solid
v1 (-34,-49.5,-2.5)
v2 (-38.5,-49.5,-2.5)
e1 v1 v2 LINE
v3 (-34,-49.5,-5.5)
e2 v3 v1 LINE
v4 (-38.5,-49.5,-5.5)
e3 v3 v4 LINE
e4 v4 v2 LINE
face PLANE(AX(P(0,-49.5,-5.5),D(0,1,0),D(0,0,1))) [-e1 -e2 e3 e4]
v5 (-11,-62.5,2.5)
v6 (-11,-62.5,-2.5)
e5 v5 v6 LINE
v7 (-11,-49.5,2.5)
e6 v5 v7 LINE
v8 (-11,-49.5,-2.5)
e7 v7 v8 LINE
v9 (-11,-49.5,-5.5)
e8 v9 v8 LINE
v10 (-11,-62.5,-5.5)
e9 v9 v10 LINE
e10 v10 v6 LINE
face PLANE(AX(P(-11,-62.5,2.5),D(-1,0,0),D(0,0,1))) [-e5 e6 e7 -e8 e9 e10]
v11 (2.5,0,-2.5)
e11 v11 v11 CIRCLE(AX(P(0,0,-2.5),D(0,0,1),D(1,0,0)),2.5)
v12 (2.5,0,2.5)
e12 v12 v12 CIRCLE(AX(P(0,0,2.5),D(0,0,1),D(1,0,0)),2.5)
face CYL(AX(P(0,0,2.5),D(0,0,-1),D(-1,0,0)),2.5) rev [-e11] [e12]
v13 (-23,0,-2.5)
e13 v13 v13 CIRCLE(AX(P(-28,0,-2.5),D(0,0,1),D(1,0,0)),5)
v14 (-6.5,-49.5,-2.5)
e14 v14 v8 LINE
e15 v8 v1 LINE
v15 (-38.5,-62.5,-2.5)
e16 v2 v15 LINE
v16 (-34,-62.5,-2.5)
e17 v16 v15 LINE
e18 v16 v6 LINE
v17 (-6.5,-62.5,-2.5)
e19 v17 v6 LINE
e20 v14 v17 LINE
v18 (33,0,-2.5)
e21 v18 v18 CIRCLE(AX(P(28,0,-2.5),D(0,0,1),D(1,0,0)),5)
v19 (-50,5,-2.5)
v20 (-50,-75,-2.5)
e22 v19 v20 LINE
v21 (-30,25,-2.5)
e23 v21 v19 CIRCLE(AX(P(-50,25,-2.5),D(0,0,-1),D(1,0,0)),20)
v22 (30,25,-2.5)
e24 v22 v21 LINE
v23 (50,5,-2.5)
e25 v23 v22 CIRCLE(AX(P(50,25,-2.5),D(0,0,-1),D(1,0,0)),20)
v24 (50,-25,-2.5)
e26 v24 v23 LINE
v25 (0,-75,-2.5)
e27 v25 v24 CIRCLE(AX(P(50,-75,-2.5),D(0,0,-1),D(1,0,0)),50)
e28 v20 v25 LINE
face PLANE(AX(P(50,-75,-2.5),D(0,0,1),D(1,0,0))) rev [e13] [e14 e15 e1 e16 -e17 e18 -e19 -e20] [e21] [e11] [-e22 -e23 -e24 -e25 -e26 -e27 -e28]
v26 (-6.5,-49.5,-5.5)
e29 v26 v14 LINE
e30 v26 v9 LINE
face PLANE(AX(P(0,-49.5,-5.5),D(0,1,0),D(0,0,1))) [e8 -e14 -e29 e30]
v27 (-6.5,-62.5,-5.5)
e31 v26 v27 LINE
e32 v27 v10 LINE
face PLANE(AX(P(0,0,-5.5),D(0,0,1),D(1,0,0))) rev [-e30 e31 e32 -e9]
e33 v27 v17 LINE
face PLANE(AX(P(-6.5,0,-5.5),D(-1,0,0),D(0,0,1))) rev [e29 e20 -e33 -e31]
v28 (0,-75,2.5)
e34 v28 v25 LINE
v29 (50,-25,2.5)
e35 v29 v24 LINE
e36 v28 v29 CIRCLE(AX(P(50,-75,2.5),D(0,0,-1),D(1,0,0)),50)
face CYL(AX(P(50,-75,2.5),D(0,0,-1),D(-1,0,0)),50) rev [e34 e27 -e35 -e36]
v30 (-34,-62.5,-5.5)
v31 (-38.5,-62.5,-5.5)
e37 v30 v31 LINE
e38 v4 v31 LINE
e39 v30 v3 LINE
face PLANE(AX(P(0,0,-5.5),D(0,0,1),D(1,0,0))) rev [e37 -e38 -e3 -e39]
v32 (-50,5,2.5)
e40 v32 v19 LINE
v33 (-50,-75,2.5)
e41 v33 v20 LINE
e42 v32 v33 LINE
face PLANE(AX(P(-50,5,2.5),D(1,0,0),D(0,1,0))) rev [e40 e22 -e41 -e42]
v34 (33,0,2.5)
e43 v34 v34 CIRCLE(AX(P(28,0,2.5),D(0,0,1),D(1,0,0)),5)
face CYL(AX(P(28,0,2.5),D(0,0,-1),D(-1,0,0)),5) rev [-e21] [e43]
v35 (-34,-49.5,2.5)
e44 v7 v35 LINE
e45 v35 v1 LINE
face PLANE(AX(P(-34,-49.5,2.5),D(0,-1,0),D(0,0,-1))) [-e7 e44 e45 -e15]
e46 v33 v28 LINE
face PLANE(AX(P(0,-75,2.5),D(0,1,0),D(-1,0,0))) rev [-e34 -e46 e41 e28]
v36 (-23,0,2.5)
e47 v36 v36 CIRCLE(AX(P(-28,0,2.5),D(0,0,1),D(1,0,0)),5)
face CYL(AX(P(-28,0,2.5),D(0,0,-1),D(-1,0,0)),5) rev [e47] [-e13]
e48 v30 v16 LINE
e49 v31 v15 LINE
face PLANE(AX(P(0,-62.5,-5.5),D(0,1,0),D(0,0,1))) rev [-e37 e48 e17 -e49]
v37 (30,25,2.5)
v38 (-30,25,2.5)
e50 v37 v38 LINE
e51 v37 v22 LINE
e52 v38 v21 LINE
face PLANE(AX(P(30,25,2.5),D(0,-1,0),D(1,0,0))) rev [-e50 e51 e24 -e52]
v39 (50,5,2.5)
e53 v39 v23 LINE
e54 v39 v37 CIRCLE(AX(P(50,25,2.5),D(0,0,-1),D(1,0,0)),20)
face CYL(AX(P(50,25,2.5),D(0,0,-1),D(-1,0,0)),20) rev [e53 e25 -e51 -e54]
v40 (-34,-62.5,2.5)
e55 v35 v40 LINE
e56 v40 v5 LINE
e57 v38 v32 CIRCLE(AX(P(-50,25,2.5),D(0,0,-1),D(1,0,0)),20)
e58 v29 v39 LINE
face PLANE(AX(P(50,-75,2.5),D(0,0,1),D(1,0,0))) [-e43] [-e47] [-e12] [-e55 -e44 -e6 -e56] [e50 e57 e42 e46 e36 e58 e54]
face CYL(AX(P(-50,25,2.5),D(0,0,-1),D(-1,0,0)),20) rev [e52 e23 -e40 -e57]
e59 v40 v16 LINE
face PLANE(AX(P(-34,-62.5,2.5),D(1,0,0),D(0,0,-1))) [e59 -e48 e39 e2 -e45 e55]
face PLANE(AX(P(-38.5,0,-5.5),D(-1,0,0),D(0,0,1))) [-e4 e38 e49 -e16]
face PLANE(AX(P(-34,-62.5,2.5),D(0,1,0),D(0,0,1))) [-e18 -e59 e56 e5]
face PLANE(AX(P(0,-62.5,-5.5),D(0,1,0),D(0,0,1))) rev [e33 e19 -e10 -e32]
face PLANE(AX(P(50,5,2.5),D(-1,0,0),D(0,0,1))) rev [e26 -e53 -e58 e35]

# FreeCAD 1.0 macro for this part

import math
import FreeCAD as App
import Part
import Sketcher

doc = App.newDocument("Part")
body = doc.addObject("PartDesign::Body", "Body")

sketch1 = body.newObject("Sketcher::SketchObject", "Sketch")
sketch1.AttachmentSupport = (doc.getObject("XY_Plane"), [""])
sketch1.MapMode = "FlatFace"
sketch1.addGeometry(Part.LineSegment(App.Vector(30, 25, 0), App.Vector(-30, 25, 0)), False)
sketch1.addGeometry(Part.ArcOfCircle(Part.Circle(App.Vector(-50, 25, 0), App.Vector(0, 0, 1), 20), math.radians(-90), math.radians(0)), False)
sketch1.addGeometry(Part.LineSegment(App.Vector(-50, 5, 0), App.Vector(-50, -75, 0)), False)
sketch1.addGeometry(Part.LineSegment(App.Vector(-50, -75, 0), App.Vector(0, -75, 0)), False)
sketch1.addGeometry(Part.ArcOfCircle(Part.Circle(App.Vector(50, -75, 0), App.Vector(0, 0, 1), 50), math.radians(90), math.radians(180)), False)
sketch1.addGeometry(Part.LineSegment(App.Vector(50, -25, 0), App.Vector(50, 5, 0)), False)
sketch1.addGeometry(Part.ArcOfCircle(Part.Circle(App.Vector(50, 25, 0), App.Vector(0, 0, 1), 20), math.radians(180), math.radians(270)), False)
sketch1.addGeometry(Part.LineSegment(App.Vector(-11, -62.5, 0), App.Vector(-34, -62.5, 0)), False)
sketch1.addGeometry(Part.LineSegment(App.Vector(-34, -62.5, 0), App.Vector(-34, -49.5, 0)), False)
sketch1.addGeometry(Part.LineSegment(App.Vector(-34, -49.5, 0), App.Vector(-11, -49.5, 0)), False)
sketch1.addGeometry(Part.LineSegment(App.Vector(-11, -49.5, 0), App.Vector(-11, -62.5, 0)), False)
sketch1.addGeometry(Part.Circle(App.Vector(-28, 0, 0), App.Vector(0, 0, 1), 5), False)
sketch1.addGeometry(Part.Circle(App.Vector(0, 0, 0), App.Vector(0, 0, 1), 2.5), False)
sketch1.addGeometry(Part.Circle(App.Vector(28, 0, 0), App.Vector(0, 0, 1), 5), False)
sketch1.addConstraint(Sketcher.Constraint("Coincident", 0, 2, 1, 2))
sketch1.addConstraint(Sketcher.Constraint("Coincident", 1, 1, 2, 1))
sketch1.addConstraint(Sketcher.Constraint("Coincident", 2, 2, 3, 1))
sketch1.addConstraint(Sketcher.Constraint("Coincident", 3, 2, 4, 2))
sketch1.addConstraint(Sketcher.Constraint("Coincident", 4, 1, 5, 1))
sketch1.addConstraint(Sketcher.Constraint("Coincident", 5, 2, 6, 2))
sketch1.addConstraint(Sketcher.Constraint("Coincident", 6, 1, 0, 1))
sketch1.addConstraint(Sketcher.Constraint("Coincident", 7, 2, 8, 1))
sketch1.addConstraint(Sketcher.Constraint("Coincident", 8, 2, 9, 1))
sketch1.addConstraint(Sketcher.Constraint("Coincident", 9, 2, 10, 1))
sketch1.addConstraint(Sketcher.Constraint("Coincident", 10, 2, 7, 1))
sketch1.addConstraint(Sketcher.Constraint("Horizontal", 0))
sketch1.addConstraint(Sketcher.Constraint("Vertical", 2))
sketch1.addConstraint(Sketcher.Constraint("Horizontal", 3))
sketch1.addConstraint(Sketcher.Constraint("Vertical", 5))
sketch1.addConstraint(Sketcher.Constraint("Horizontal", 7))
sketch1.addConstraint(Sketcher.Constraint("Vertical", 8))
sketch1.addConstraint(Sketcher.Constraint("Horizontal", 9))
sketch1.addConstraint(Sketcher.Constraint("Vertical", 10))
sketch1.addConstraint(Sketcher.Constraint("Coincident", 12, 3, -1, 1))
sketch1.addConstraint(Sketcher.Constraint("Equal", 1, 6))
sketch1.addConstraint(Sketcher.Constraint("Equal", 11, 13))
sketch1.addConstraint(Sketcher.Constraint("Symmetric", 11, 3, 13, 3, -1, 1))
sketch1.addConstraint(Sketcher.Constraint("Symmetric", 1, 3, 6, 3, -2))
sketch1.addConstraint(Sketcher.Constraint("PointOnObject", 11, 3, -1))
sketch1.addConstraint(Sketcher.Constraint("PointOnObject", 3, 2, -2))
sketch1.addConstraint(Sketcher.Constraint("Horizontal", 6, 3, 0, 2))
sketch1.addConstraint(Sketcher.Constraint("Horizontal", 4, 3, 2, 2))
sketch1.addConstraint(Sketcher.Constraint("Vertical", 4, 3, 6, 3))
sketch1.addConstraint(Sketcher.Constraint("Vertical", 6, 3, 4, 1))
sketch1.addConstraint(Sketcher.Constraint("Diameter", 11, 10.0))
sketch1.addConstraint(Sketcher.Constraint("Diameter", 12, 5.0))
sketch1.addConstraint(Sketcher.Constraint("Radius", 1, 20.0))
sketch1.addConstraint(Sketcher.Constraint("Radius", 4, 50.0))
sketch1.addConstraint(Sketcher.Constraint("DistanceX", 3, 1, 3, 2, 50.0))
sketch1.addConstraint(Sketcher.Constraint("DistanceX", 7, 2, 7, 1, 23.0))
sketch1.addConstraint(Sketcher.Constraint("DistanceY", 2, 2, 2, 1, 80.0))
sketch1.addConstraint(Sketcher.Constraint("DistanceY", 8, 1, 8, 2, 13.0))
sketch1.addConstraint(Sketcher.Constraint("DistanceY", -1, 1, 1, 3, 25.0))
sketch1.addConstraint(Sketcher.Constraint("DistanceX", 11, 3, -1, 1, 28.0))
sketch1.addConstraint(Sketcher.Constraint("DistanceX", 7, 2, -1, 1, 34.0))
sketch1.addConstraint(Sketcher.Constraint("DistanceY", 7, 2, -1, 1, 62.5))
pad1 = body.newObject("PartDesign::Pad", "Pad")
pad1.Profile = sketch1
pad1.Length = 5
pad1.Midplane = True

sketch2 = body.newObject("Sketcher::SketchObject", "Sketch001")
sketch2.AttachmentSupport = (doc.getObject("XY_Plane"), [""])
sketch2.MapMode = "FlatFace"
sketch2.AttachmentOffset = App.Placement(App.Vector(0, 0, 2.5), App.Rotation())
sketch2.addGeometry(Part.LineSegment(App.Vector(-38.5, -49.5, 0), App.Vector(-38.5, -62.5, 0)), False)
sketch2.addGeometry(Part.LineSegment(App.Vector(-38.5, -62.5, 0), App.Vector(-34, -62.5, 0)), False)
sketch2.addGeometry(Part.LineSegment(App.Vector(-34, -62.5, 0), App.Vector(-34, -49.5, 0)), False)
sketch2.addGeometry(Part.LineSegment(App.Vector(-34, -49.5, 0), App.Vector(-38.5, -49.5, 0)), False)
sketch2.addGeometry(Part.LineSegment(App.Vector(-11, -49.5, 0), App.Vector(-11, -62.5, 0)), False)
sketch2.addGeometry(Part.LineSegment(App.Vector(-11, -62.5, 0), App.Vector(-6.5, -62.5, 0)), False)
sketch2.addGeometry(Part.LineSegment(App.Vector(-6.5, -62.5, 0), App.Vector(-6.5, -49.5, 0)), False)
sketch2.addGeometry(Part.LineSegment(App.Vector(-6.5, -49.5, 0), App.Vector(-11, -49.5, 0)), False)
sketch2.addConstraint(Sketcher.Constraint("Coincident", 0, 2, 1, 1))
sketch2.addConstraint(Sketcher.Constraint("Coincident", 1, 2, 2, 1))
sketch2.addConstraint(Sketcher.Constraint("Coincident", 2, 2, 3, 1))
sketch2.addConstraint(Sketcher.Constraint("Coincident", 3, 2, 0, 1))
sketch2.addConstraint(Sketcher.Constraint("Coincident", 4, 2, 5, 1))
sketch2.addConstraint(Sketcher.Constraint("Coincident", 5, 2, 6, 1))
sketch2.addConstraint(Sketcher.Constraint("Coincident", 6, 2, 7, 1))
sketch2.addConstraint(Sketcher.Constraint("Coincident", 7, 2, 4, 1))
sketch2.addConstraint(Sketcher.Constraint("Vertical", 0))
sketch2.addConstraint(Sketcher.Constraint("Horizontal", 1))
sketch2.addConstraint(Sketcher.Constraint("Vertical", 2))
sketch2.addConstraint(Sketcher.Constraint("Horizontal", 3))
sketch2.addConstraint(Sketcher.Constraint("Vertical", 4))
sketch2.addConstraint(Sketcher.Constraint("Horizontal", 5))
sketch2.addConstraint(Sketcher.Constraint("Vertical", 6))
sketch2.addConstraint(Sketcher.Constraint("Horizontal", 7))
sketch2.addConstraint(Sketcher.Constraint("Horizontal", 1, 2, 4, 2))
sketch2.addConstraint(Sketcher.Constraint("Horizontal", 3, 2, 6, 2))
sketch2.addConstraint(Sketcher.Constraint("Equal", 3, 5))
sketch2.addConstraint(Sketcher.Constraint("DistanceY", 0, 2, 0, 1, 13.0))
sketch2.addConstraint(Sketcher.Constraint("DistanceX", 1, 1, 1, 2, 4.5))
sketch2.addConstraint(Sketcher.Constraint("DistanceX", 1, 2, -1, 1, 34.0))
sketch2.addConstraint(Sketcher.Constraint("DistanceX", 4, 2, -1, 1, 11.0))
sketch2.addConstraint(Sketcher.Constraint("DistanceY", 0, 2, -1, 1, 62.5))
pad2 = body.newObject("PartDesign::Pad", "Pad001")
pad2.Profile = sketch2
pad2.Length = 8
pad2.Reversed = True

doc.recompute()
